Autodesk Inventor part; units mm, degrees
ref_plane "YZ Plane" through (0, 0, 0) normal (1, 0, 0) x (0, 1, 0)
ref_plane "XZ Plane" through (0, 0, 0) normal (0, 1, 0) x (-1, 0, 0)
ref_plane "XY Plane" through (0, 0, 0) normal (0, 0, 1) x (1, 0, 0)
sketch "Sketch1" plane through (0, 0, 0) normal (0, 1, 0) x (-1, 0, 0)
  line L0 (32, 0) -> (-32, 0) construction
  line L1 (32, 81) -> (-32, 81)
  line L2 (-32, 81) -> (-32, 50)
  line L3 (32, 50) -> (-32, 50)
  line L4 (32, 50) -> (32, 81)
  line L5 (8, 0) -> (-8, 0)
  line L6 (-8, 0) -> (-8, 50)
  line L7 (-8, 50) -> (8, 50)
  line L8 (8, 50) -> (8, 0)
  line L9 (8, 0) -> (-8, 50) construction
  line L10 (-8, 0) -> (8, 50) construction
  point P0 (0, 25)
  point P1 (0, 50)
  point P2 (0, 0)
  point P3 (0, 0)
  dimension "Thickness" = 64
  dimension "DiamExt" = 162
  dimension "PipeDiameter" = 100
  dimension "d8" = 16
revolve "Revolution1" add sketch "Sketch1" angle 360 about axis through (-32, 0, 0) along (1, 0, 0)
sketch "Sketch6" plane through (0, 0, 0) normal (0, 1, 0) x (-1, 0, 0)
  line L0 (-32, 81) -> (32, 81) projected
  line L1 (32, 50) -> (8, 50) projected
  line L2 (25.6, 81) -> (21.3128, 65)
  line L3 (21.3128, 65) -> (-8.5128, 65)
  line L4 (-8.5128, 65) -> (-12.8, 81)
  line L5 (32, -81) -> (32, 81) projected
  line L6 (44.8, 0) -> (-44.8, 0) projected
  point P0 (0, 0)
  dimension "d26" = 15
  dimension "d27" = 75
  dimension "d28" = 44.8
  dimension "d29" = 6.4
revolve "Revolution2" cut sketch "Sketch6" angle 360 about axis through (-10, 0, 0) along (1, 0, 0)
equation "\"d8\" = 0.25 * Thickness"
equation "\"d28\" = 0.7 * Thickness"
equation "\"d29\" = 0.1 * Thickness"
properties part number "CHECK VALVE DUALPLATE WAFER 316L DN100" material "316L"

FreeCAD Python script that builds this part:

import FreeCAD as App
import Part
import Sketcher
Q = App.Units.Quantity


def add_polygon(sketch, points):
    """Adds a closed chain of lines whose ends are joined by coincident constraints."""
    first, n = sketch.GeometryCount, len(points)
    for a, b in zip(points, points[1:] + points[:1]):
        sketch.addGeometry(Part.LineSegment(App.Vector(*a, 0), App.Vector(*b, 0)), False)
    for i in range(n):
        sketch.addConstraint(Sketcher.Constraint("Coincident", first + i, 2, first + (i + 1) % n, 1))

doc = App.newDocument("Part")
params = doc.addObject("Spreadsheet::Sheet", "Params")
for row, (alias, value) in enumerate([
    ("sketch1_width", "64 mm"),
    ("sketch1_width2", "16 mm"),
    ("sketch1_height", "31 mm"),
    ("sketch1_height2", "50 mm"),
    ("revolution_angle", "360 deg"),
    ("sketch2_width", "38.4 mm"),
    ("groove_angle", "360 deg"),
], start=1):
    params.set(f"A{row}", alias)
    params.set(f"B{row}", "=" + value)
    params.setAlias(f"B{row}", alias)

body = doc.addObject("PartDesign::Body", "Body")

sketch1 = body.newObject("Sketcher::SketchObject", "Sketch")
sketch1.AttachmentSupport = (doc.getObject("XZ_Plane"), [""])
sketch1.MapMode = "FlatFace"
add_polygon(sketch1, [(-32, 50), (-32, 81), (32, 81), (32, 50), (8, 50), (8, 0), (-8, 0), (-8, 50)])
sketch1.addConstraint([
    Sketcher.Constraint("Vertical", 0),
    Sketcher.Constraint("Horizontal", 1),
    Sketcher.Constraint("Vertical", 2),
    Sketcher.Constraint("Horizontal", 3),
    Sketcher.Constraint("Vertical", 4),
    Sketcher.Constraint("Horizontal", 5),
    Sketcher.Constraint("Vertical", 6),
    Sketcher.Constraint("Horizontal", 7),
    Sketcher.Constraint("Symmetric", 4, 2, 5, 2, -1, 1),
    Sketcher.Constraint("Symmetric", 2, 2, 7, 2, -2),
    Sketcher.Constraint("DistanceX", 1, 1, 1, 2, Q("64 mm")),
    Sketcher.Constraint("DistanceX", 5, 2, 5, 1, Q("16 mm")),
    Sketcher.Constraint("DistanceY", 0, 1, 0, 2, Q("31 mm")),
    Sketcher.Constraint("DistanceY", 4, 2, 4, 1, Q("50 mm")),
])
sketch1.setExpression("Constraints[18]", "Params.sketch1_width")
sketch1.setExpression("Constraints[19]", "Params.sketch1_width2")
sketch1.setExpression("Constraints[20]", "Params.sketch1_height")
sketch1.setExpression("Constraints[21]", "Params.sketch1_height2")
revolution = body.newObject("PartDesign::Revolution", "Revolution")
revolution.Profile = sketch1
revolution.ReferenceAxis = (sketch1, ["H_Axis"])
revolution.setExpression("Angle", "Params.revolution_angle")

sketch2 = body.newObject("Sketcher::SketchObject", "Sketch001")
sketch2.AttachmentSupport = (doc.getObject("XZ_Plane"), [""])
sketch2.MapMode = "FlatFace"
add_polygon(sketch2, [(-26, 81), (13, 81), (9, 65), (-21, 65)])
sketch2.addConstraint([
    Sketcher.Constraint("Horizontal", 0),
    Sketcher.Constraint("Horizontal", 2),
    Sketcher.Constraint("Equal", 1, 3),
    Sketcher.Constraint("Angle", 1, Q("-105 deg")),
    Sketcher.Constraint("DistanceX", 0, 1, 0, 2, Q("38.4 mm")),
    Sketcher.Constraint("DistanceY", -1, 1, 0, 2, Q("81 mm")),
    Sketcher.Constraint("DistanceY", -1, 1, 1, 2, Q("65 mm")),
    Sketcher.Constraint("DistanceX", -1, 1, 0, 2, Q("12.8 mm")),
])
sketch2.setExpression("Constraints[8]", "Params.sketch2_width")
groove = body.newObject("PartDesign::Groove", "Groove")
groove.Profile = sketch2
groove.ReferenceAxis = (sketch2, ["H_Axis"])
groove.setExpression("Angle", "Params.groove_angle")

doc.recompute()
